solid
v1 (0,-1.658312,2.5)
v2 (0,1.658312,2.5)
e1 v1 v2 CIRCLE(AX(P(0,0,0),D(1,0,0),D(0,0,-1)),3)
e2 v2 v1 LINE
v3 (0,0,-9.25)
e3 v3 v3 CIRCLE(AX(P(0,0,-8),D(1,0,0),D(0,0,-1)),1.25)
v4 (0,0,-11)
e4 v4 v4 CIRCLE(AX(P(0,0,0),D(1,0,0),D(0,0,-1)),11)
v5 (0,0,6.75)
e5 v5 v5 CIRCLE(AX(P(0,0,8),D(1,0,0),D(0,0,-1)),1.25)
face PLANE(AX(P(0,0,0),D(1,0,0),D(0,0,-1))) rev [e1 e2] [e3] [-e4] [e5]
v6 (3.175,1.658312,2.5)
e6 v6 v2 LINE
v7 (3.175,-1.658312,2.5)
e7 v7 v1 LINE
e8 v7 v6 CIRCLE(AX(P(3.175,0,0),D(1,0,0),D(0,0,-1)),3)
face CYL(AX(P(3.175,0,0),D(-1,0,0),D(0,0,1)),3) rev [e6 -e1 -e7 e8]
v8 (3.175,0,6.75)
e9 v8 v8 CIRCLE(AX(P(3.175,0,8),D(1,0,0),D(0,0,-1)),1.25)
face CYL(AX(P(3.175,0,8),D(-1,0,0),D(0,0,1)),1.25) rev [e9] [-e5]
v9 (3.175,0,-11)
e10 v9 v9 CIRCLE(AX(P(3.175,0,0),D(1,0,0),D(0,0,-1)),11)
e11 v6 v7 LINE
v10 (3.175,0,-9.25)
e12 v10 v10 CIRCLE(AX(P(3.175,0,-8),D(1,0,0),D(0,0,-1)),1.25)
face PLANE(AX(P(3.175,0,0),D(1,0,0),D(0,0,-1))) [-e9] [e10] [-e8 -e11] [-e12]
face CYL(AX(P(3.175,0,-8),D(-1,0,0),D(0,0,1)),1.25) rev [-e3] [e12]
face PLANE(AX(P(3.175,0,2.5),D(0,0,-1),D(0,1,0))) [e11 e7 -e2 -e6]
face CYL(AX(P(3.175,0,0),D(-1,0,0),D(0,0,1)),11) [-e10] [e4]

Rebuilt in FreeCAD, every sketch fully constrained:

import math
import FreeCAD as App
import Part
import Sketcher
Q = App.Units.Quantity

doc = App.newDocument("Part")
body = doc.addObject("PartDesign::Body", "Body")

sketch1 = body.newObject("Sketcher::SketchObject", "Sketch")
sketch1.AttachmentSupport = (doc.getObject("YZ_Plane"), [""])
sketch1.MapMode = "FlatFace"
sketch1.addGeometry([
    Part.Circle(App.Vector(0, 0, 0), App.Vector(0, 0, 1), 11),
    Part.Circle(App.Vector(0, 8, 0), App.Vector(0, 0, 1), 1.25),
    Part.ArcOfCircle(Part.Circle(App.Vector(0, 0, 0), App.Vector(0, 0, 1), 3), math.radians(123.55731), math.radians(270)),
    Part.LineSegment(App.Vector(-1.658312, 2.5, 0), App.Vector(1.658312, 2.5, 0)),
    Part.ArcOfCircle(Part.Circle(App.Vector(0, 0, 0), App.Vector(0, 0, 1), 3), math.radians(-90), math.radians(56.44269)),
    Part.Circle(App.Vector(0, -8, 0), App.Vector(0, 0, 1), 1.25),
], False)
sketch1.addConstraint([
    Sketcher.Constraint("Coincident", 2, 1, 3, 1),
    Sketcher.Constraint("Coincident", 3, 2, 4, 2),
    Sketcher.Constraint("Tangent", 4, 1, 2, 2),
    Sketcher.Constraint("Horizontal", 3),
    Sketcher.Constraint("Coincident", 0, 3, -1, 1),
    Sketcher.Constraint("Coincident", 2, 3, -1, 1),
    Sketcher.Constraint("Equal", 2, 4),
    Sketcher.Constraint("Equal", 1, 5),
    Sketcher.Constraint("Symmetric", 1, 3, 5, 3, -1, 1),
    Sketcher.Constraint("PointOnObject", 1, 3, -2),
    Sketcher.Constraint("PointOnObject", 4, 1, -2),
    Sketcher.Constraint("Diameter", 0, Q("22 mm")),
    Sketcher.Constraint("Radius", 2, Q("3 mm")),
    Sketcher.Constraint("Diameter", 1, Q("2.5 mm")),
    Sketcher.Constraint("DistanceY", -1, 1, 1, 3, Q("8 mm")),
    Sketcher.Constraint("DistanceY", -1, 1, 2, 1, Q("2.5 mm")),
])
pad1 = body.newObject("PartDesign::Pad", "Pad")
pad1.Profile = sketch1
pad1.Length = 3.175

doc.recompute()
